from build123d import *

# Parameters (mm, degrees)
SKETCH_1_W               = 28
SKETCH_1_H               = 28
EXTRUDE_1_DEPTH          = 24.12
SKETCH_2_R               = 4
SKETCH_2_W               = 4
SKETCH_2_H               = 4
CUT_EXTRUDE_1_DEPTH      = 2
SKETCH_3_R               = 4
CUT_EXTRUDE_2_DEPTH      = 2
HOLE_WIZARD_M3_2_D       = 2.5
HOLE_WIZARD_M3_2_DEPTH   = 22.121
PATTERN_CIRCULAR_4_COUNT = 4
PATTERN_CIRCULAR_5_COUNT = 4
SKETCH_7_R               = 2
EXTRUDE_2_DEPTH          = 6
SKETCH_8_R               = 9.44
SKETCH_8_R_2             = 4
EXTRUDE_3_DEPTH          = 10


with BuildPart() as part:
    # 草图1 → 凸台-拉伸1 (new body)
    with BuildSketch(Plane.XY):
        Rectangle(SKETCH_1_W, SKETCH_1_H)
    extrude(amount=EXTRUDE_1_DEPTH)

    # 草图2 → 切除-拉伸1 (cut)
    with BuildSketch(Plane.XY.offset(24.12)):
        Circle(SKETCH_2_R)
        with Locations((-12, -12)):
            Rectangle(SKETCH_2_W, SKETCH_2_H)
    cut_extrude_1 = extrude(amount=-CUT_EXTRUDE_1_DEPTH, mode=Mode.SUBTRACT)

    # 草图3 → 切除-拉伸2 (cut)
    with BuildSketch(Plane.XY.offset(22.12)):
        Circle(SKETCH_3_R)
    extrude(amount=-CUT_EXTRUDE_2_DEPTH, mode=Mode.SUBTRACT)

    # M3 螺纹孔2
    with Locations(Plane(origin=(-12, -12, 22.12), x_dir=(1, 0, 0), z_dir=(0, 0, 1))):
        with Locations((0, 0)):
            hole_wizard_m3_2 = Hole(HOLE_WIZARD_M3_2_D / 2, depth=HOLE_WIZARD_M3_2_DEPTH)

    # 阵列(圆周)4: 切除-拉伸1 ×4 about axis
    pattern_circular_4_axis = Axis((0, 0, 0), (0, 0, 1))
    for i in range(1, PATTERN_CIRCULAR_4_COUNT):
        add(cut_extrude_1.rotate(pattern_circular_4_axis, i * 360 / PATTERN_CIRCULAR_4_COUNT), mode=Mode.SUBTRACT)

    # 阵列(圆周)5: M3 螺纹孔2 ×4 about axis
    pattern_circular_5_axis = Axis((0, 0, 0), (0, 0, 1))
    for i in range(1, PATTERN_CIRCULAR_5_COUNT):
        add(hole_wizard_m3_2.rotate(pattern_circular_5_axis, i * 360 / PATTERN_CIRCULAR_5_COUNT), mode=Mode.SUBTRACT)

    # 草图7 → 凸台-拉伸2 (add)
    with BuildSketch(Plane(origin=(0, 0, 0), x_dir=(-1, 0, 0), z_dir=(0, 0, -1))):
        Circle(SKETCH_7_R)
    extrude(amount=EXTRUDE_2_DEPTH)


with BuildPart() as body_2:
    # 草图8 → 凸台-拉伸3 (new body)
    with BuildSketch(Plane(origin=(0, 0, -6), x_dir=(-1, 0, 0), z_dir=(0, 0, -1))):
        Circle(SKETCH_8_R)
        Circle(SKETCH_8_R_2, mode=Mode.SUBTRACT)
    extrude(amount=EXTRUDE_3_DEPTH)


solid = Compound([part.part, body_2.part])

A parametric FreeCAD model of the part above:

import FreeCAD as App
import Part
import Sketcher

V = App.Vector


def add_polygon(sketch, points):
    """Adds a closed chain of lines whose ends are joined by coincident constraints."""
    first, n = sketch.GeometryCount, len(points)
    for a, b in zip(points, points[1:] + points[:1]):
        sketch.addGeometry(Part.LineSegment(App.Vector(*a, 0), App.Vector(*b, 0)), False)
    for i in range(n):
        sketch.addConstraint(Sketcher.Constraint("Coincident", first + i, 2, first + (i + 1) % n, 1))

doc = App.newDocument("Part")
body = doc.addObject("PartDesign::Body", "Body")

# Sketch on XY plane
sketch1 = body.newObject("Sketcher::SketchObject", "Sketch")
sketch1.AttachmentSupport = (doc.getObject("XY_Plane"), [""])
sketch1.MapMode = "FlatFace"
add_polygon(sketch1, [(-14, 14), (-14, -14), (14, -14), (14, 14)])  # lines 0-3
sketch1.addConstraint([
    Sketcher.Constraint("Vertical", 0),
    Sketcher.Constraint("Horizontal", 1),
    Sketcher.Constraint("Vertical", 2),
    Sketcher.Constraint("Horizontal", 3),
    Sketcher.Constraint("Symmetric", 0, 2, 2, 2, -1, 1),
    Sketcher.Constraint("Equal", 3, 0),
    Sketcher.Constraint("DistanceX", 1, 1, 1, 2, 28.0),
])
pad1 = body.newObject("PartDesign::Pad", "Pad")
pad1.Profile = sketch1
pad1.Length = 24.12

# Sketch on XY plane
sketch2 = body.newObject("Sketcher::SketchObject", "Sketch001")
sketch2.AttachmentSupport = (doc.getObject("XY_Plane"), [""])
sketch2.MapMode = "FlatFace"
sketch2.AttachmentOffset = App.Placement(V(0, 0, 24.12), App.Rotation())
sketch2.addGeometry(Part.Circle(V(0, 0, 0), V(0, 0, 1), 4), False)  # 0
add_polygon(sketch2, [(-14, -10), (-14, -14), (-10, -14), (-10, -10)])  # lines 1-4
sketch2.addConstraint([
    Sketcher.Constraint("Vertical", 1),
    Sketcher.Constraint("Horizontal", 2),
    Sketcher.Constraint("Vertical", 3),
    Sketcher.Constraint("Horizontal", 4),
    Sketcher.Constraint("Coincident", 0, 3, -1, 1),
    Sketcher.Constraint("Equal", 4, 1),
    Sketcher.Constraint("Diameter", 0, 8.0),
    Sketcher.Constraint("DistanceX", 2, 1, 2, 2, 4.0),
    Sketcher.Constraint("DistanceX", 1, 2, -1, 1, 14.0),
    Sketcher.Constraint("DistanceY", 1, 2, -1, 1, 14.0),
])
pocket1 = body.newObject("PartDesign::Pocket", "Pocket")
pocket1.Profile = sketch2
pocket1.Length = 2

# Sketch on XY plane
sketch3 = body.newObject("Sketcher::SketchObject", "Sketch002")
sketch3.AttachmentSupport = (doc.getObject("XY_Plane"), [""])
sketch3.MapMode = "FlatFace"
sketch3.AttachmentOffset = App.Placement(V(0, 0, 22.12), App.Rotation())
sketch3.addGeometry(Part.Circle(V(0, 0, 0), V(0, 0, 1), 4), False)
sketch3.addConstraint([
    Sketcher.Constraint("Coincident", 0, 3, -1, 1),
    Sketcher.Constraint("Diameter", 0, 8.0),
])
pocket2 = body.newObject("PartDesign::Pocket", "Pocket001")
pocket2.Profile = sketch3
pocket2.Length = 2

# Sketch on XY plane
sketch4 = body.newObject("Sketcher::SketchObject", "Sketch003")
sketch4.AttachmentSupport = (doc.getObject("XY_Plane"), [""])
sketch4.MapMode = "FlatFace"
sketch4.AttachmentOffset = App.Placement(V(0, 0, 22.12), App.Rotation())
sketch4.addGeometry(Part.Circle(V(-12, -12, 0), V(0, 0, 1), 1.2), False)
sketch4.addConstraint([
    Sketcher.Constraint("Diameter", 0, 2.5),
    Sketcher.Constraint("DistanceX", 0, 3, -1, 1, 12.0),
    Sketcher.Constraint("DistanceY", 0, 3, -1, 1, 12.0),
])
doc.recompute()
hole = body.newObject("PartDesign::Hole", "Hole")
hole.Profile = sketch4
hole.ThreadType = "None"
hole.Diameter = 2.5
hole.DepthType = "Dimension"
hole.Depth = 22.121
hole.DrillPoint = "Flat"
doc.recompute()

polarpattern = body.newObject("PartDesign::PolarPattern", "PolarPattern")
polarpattern.Originals = [pocket1]
polarpattern.Axis = (doc.getObject("Z_Axis"), [""])
polarpattern.Angle = 360
polarpattern.Occurrences = 4
body.Tip = polarpattern
doc.recompute()

polarpattern2 = body.newObject("PartDesign::PolarPattern", "PolarPattern001")
polarpattern2.Originals = [hole]
polarpattern2.Axis = (doc.getObject("Z_Axis"), [""])
polarpattern2.Angle = 360
polarpattern2.Occurrences = 4
body.Tip = polarpattern2

# Sketch on XY plane
sketch5 = body.newObject("Sketcher::SketchObject", "Sketch004")
sketch5.AttachmentSupport = (doc.getObject("XY_Plane"), [""])
sketch5.MapMode = "FlatFace"
sketch5.addGeometry(Part.Circle(V(0, 0, 0), V(0, 0, 1), 2), False)
sketch5.addConstraint([
    Sketcher.Constraint("Coincident", 0, 3, -1, 1),
    Sketcher.Constraint("Diameter", 0, 4.0),
])
pad2 = body.newObject("PartDesign::Pad", "Pad001")
pad2.Profile = sketch5
pad2.Length = 6
pad2.Reversed = True
body2 = doc.addObject("PartDesign::Body", "Body001")

# Sketch on XY plane
sketch6 = body2.newObject("Sketcher::SketchObject", "Sketch005")
sketch6.AttachmentSupport = (doc.getObject("XY_Plane001"), [""])
sketch6.MapMode = "FlatFace"
sketch6.AttachmentOffset = App.Placement(V(0, 0, -6), App.Rotation())
sketch6.addGeometry([
    Part.Circle(V(0, 0, 0), V(0, 0, 1), 9.4),
    Part.Circle(V(0, 0, 0), V(0, 0, 1), 4),
], False)
sketch6.addConstraint([
    Sketcher.Constraint("Coincident", 0, 3, -1, 1),
    Sketcher.Constraint("Coincident", 1, 3, -1, 1),
    Sketcher.Constraint("Diameter", 1, 8.0),
    Sketcher.Constraint("Diameter", 0, 18.88),
])
pad3 = body2.newObject("PartDesign::Pad", "Pad002")
pad3.Profile = sketch6
pad3.Length = 10
pad3.Reversed = True

doc.recompute()
